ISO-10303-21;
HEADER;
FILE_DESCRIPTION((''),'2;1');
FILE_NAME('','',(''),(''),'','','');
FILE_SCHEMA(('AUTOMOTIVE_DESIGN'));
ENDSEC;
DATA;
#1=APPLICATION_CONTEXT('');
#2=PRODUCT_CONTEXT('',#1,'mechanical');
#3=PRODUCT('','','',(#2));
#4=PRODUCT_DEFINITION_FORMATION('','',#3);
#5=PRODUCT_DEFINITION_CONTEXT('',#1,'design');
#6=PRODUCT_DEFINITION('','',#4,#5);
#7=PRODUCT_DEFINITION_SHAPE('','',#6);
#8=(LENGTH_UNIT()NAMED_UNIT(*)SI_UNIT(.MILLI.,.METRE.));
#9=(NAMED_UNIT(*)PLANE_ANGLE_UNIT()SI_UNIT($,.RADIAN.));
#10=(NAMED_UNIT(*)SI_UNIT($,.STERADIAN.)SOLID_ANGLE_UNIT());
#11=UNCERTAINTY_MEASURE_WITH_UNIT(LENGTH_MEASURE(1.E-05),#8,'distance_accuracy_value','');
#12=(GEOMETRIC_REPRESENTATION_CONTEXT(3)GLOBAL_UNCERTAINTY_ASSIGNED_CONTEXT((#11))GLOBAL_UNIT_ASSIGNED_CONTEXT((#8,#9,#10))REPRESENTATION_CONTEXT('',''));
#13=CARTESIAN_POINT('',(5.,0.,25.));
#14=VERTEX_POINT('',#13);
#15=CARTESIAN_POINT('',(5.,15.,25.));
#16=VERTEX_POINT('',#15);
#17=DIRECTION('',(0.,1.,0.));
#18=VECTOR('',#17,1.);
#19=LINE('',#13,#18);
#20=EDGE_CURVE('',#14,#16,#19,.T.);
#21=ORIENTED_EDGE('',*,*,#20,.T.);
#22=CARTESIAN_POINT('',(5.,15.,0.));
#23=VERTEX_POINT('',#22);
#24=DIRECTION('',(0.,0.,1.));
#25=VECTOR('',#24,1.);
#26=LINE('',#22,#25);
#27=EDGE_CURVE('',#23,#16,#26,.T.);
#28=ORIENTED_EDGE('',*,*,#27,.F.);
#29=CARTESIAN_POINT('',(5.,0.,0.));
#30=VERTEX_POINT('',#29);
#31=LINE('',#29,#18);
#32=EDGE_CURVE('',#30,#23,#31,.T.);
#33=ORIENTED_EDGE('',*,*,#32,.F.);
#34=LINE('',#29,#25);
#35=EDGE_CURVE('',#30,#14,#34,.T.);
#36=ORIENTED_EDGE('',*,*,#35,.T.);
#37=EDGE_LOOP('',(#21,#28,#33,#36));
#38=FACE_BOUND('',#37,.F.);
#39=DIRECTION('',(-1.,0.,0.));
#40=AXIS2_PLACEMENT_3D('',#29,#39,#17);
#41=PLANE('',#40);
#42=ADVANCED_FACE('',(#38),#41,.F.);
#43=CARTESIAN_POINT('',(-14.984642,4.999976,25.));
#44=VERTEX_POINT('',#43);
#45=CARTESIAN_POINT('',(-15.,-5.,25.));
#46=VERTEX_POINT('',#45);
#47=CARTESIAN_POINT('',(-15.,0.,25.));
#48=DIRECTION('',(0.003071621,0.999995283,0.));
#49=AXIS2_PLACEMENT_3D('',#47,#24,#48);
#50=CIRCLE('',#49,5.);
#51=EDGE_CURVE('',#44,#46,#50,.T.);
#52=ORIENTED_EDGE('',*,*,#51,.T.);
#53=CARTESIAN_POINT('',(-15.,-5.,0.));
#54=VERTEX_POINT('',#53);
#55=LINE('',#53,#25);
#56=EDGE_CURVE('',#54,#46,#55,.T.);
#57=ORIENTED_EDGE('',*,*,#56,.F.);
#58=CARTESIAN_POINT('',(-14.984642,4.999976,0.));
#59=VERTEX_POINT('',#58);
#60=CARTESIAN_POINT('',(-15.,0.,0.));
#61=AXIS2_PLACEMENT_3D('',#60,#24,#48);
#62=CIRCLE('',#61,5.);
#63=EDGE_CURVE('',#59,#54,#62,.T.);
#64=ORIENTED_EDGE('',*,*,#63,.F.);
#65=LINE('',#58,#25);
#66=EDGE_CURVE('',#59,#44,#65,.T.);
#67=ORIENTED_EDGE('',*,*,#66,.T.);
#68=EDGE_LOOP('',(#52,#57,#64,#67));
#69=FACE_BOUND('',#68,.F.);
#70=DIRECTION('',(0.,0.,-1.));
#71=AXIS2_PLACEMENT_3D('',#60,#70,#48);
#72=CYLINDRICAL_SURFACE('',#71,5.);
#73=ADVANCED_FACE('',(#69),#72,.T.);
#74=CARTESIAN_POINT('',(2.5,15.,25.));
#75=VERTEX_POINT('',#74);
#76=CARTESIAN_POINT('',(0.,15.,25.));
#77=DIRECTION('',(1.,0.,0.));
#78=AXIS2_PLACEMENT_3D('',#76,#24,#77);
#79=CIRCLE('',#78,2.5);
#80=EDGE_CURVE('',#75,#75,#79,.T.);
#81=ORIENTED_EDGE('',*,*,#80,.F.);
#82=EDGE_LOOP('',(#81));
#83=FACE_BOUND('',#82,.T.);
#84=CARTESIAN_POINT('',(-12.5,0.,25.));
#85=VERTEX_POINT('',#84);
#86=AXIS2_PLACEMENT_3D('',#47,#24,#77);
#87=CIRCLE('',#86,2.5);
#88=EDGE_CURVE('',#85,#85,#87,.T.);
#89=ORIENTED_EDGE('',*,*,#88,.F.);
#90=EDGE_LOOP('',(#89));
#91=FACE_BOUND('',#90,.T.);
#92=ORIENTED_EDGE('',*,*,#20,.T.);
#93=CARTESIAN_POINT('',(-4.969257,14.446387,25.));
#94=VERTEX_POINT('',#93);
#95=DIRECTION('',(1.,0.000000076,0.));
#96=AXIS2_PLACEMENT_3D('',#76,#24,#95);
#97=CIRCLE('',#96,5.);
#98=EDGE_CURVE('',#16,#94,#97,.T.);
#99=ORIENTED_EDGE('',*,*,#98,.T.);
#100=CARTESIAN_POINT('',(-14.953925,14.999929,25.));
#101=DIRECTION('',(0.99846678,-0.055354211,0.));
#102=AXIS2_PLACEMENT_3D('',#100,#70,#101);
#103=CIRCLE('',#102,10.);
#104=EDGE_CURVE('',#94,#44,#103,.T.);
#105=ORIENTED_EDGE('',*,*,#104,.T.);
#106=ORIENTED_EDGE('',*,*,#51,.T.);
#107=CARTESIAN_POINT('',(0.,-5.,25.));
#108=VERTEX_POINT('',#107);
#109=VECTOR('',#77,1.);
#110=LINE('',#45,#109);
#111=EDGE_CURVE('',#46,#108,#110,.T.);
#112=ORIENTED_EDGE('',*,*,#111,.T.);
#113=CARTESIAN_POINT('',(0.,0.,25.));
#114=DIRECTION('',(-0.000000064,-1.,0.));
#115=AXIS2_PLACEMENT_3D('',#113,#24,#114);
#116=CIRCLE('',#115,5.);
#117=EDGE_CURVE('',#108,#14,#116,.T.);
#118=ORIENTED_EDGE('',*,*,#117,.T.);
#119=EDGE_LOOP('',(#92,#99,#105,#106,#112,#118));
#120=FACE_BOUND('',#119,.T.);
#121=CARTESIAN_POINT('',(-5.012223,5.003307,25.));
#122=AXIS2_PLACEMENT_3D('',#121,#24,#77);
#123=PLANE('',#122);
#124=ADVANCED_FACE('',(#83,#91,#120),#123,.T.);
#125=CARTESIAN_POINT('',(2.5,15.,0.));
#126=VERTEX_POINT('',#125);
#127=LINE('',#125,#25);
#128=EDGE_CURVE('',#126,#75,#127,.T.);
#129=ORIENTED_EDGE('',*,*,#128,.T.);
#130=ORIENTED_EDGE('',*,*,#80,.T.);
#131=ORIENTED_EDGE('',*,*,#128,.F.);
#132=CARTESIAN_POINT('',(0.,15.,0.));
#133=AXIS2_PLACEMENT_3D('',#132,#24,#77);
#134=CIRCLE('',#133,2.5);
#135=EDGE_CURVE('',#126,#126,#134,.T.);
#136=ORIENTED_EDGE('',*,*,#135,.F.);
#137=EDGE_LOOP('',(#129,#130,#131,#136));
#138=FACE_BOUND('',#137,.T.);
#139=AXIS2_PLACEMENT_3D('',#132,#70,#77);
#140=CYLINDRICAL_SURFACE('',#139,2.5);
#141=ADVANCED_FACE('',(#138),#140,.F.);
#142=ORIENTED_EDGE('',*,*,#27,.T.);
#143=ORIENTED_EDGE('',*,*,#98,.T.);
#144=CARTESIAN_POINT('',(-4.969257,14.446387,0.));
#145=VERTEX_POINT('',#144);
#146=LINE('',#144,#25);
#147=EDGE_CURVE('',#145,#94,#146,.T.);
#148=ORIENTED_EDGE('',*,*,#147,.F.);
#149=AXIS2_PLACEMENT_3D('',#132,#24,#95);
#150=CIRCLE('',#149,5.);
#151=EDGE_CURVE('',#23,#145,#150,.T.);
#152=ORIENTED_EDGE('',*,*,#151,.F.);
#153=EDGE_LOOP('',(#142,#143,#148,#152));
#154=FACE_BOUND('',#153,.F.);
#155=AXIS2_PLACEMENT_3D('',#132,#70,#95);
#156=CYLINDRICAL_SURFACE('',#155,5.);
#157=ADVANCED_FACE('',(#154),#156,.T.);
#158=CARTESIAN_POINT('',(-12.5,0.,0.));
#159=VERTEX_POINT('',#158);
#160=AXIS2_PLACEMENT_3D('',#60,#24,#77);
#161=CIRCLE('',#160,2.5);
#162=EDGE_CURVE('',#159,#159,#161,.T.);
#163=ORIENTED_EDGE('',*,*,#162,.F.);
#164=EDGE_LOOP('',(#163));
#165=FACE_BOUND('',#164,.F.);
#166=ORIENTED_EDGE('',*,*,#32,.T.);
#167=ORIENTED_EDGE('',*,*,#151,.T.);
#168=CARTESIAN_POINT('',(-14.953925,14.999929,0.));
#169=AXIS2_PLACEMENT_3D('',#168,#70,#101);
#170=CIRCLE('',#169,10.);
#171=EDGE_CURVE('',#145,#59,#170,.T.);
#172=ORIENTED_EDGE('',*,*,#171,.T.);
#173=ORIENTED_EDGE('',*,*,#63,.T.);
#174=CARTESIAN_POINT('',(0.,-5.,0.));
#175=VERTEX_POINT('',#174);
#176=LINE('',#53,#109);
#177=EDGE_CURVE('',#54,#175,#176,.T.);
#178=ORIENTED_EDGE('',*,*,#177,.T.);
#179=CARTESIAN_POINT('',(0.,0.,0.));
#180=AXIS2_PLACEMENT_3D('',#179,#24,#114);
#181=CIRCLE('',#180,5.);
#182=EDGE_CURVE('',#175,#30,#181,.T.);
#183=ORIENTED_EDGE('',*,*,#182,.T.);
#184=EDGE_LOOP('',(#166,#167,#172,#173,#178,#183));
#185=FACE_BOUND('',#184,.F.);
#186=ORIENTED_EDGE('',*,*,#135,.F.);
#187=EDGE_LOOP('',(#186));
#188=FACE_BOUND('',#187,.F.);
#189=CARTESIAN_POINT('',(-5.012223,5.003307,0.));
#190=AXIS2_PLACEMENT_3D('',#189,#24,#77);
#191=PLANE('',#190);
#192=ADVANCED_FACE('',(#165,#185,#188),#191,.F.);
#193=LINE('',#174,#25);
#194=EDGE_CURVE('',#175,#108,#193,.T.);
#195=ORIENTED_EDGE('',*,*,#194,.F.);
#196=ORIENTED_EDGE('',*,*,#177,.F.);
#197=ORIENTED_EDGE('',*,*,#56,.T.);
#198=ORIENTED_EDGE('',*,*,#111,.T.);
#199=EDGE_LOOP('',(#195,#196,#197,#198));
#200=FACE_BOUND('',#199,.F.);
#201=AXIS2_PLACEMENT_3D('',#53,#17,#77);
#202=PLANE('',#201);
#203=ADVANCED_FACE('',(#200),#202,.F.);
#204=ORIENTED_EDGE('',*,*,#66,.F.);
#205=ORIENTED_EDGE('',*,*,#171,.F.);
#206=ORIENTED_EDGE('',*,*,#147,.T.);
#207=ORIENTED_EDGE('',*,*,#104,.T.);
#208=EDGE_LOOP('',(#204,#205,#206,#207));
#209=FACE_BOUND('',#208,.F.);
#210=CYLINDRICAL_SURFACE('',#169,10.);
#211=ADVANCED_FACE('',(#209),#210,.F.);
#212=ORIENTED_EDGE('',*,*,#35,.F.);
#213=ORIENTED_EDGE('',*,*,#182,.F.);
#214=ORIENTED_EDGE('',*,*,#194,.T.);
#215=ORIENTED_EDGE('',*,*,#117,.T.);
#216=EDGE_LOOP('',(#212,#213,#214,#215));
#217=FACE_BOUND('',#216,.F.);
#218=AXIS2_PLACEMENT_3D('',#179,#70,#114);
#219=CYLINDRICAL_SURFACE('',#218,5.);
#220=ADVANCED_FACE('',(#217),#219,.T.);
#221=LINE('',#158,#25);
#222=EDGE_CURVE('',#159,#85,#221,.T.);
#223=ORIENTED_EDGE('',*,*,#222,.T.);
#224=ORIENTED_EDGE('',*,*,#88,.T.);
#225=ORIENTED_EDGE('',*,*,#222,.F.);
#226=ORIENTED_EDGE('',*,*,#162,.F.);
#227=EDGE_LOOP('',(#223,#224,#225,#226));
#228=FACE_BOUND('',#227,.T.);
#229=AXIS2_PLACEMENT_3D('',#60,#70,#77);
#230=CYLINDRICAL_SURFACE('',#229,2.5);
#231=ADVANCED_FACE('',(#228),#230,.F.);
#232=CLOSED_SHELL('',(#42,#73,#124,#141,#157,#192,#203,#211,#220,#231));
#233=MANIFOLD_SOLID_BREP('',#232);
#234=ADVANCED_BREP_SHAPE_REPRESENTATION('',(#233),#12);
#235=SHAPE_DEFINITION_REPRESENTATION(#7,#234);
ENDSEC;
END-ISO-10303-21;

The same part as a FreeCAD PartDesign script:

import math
import FreeCAD as App
import Part
import Sketcher
Q = App.Units.Quantity

doc = App.newDocument("Part")
params = doc.addObject("Spreadsheet::Sheet", "Params")
for row, (alias, value) in enumerate([
    ("sketch1_diameter", "5 mm"),
    ("sketch1_radius", "5 mm"),
    ("sketch1_radius2", "10 mm"),
    ("sketch1_width", "15 mm"),
    ("pad1_length", "25 mm"),
], start=1):
    params.set(f"A{row}", alias)
    params.set(f"B{row}", "=" + value)
    params.setAlias(f"B{row}", alias)

body = doc.addObject("PartDesign::Body", "Body")

# Sketch on XY plane
sketch1 = doc.addObject("Sketcher::SketchObject", "Sketch")
body.addObject(sketch1)
sketch1.AttachmentSupport = (doc.XY_Plane, [""])
sketch1.MapMode = "FlatFace"
sketch1.addGeometry([
    Part.LineSegment(App.Vector(5, 0, 0), App.Vector(5, 15, 0)),  # 0
    Part.ArcOfCircle(Part.Circle(App.Vector(0, 15, 0), App.Vector(0, 0, 1), 5), math.radians(0), math.radians(186)),  # 1
    Part.ArcOfCircle(Part.Circle(App.Vector(-15, 15, 0), App.Vector(0, 0, 1), 10), math.radians(-90), math.radians(-3)),  # 2
    Part.ArcOfCircle(Part.Circle(App.Vector(-15, 0, 0), App.Vector(0, 0, 1), 5), math.radians(90), math.radians(270)),  # 3
    Part.LineSegment(App.Vector(-15, -5, 0), App.Vector(0, -5, 0)),  # 4
    Part.ArcOfCircle(Part.Circle(App.Vector(0, 0, 0), App.Vector(0, 0, 1), 5), math.radians(-90), math.radians(0)),  # 5
    Part.Circle(App.Vector(-15, 0, 0), App.Vector(0, 0, 1), 2.5),  # 6
    Part.Circle(App.Vector(0, 15, 0), App.Vector(0, 0, 1), 2.5),  # 7
], False)
sketch1.addConstraint([
    Sketcher.Constraint("Tangent", 0, 2, 1, 1),
    Sketcher.Constraint("Coincident", 1, 2, 2, 2),
    Sketcher.Constraint("Tangent", 2, 1, 3, 1),
    Sketcher.Constraint("Tangent", 3, 2, 4, 1),
    Sketcher.Constraint("Tangent", 4, 2, 5, 1),
    Sketcher.Constraint("Tangent", 5, 2, 0, 1),
    Sketcher.Constraint("Vertical", 0),
    Sketcher.Constraint("Horizontal", 4),
    Sketcher.Constraint("Coincident", 5, 3, -1, 1),
    Sketcher.Constraint("Coincident", 6, 3, 3, 3),
    Sketcher.Constraint("Coincident", 7, 3, 1, 3),
    Sketcher.Constraint("Equal", 1, 3),
    Sketcher.Constraint("Equal", 3, 5),
    Sketcher.Constraint("Equal", 6, 7),
    Sketcher.Constraint("Equal", 4, 0),
    Sketcher.Constraint("Diameter", 6, Q("5 mm")),
    Sketcher.Constraint("Radius", 1, Q("5 mm")),
    Sketcher.Constraint("Radius", 2, Q("10 mm")),
    Sketcher.Constraint("DistanceX", 4, 1, 4, 2, Q("15 mm")),
    Sketcher.Constraint("DistanceX", 2, 3, 1, 2, Q("9.984668 mm")),
])
sketch1.setExpression("Constraints[15]", "Params.sketch1_diameter")
sketch1.setExpression("Constraints[16]", "Params.sketch1_radius")
sketch1.setExpression("Constraints[17]", "Params.sketch1_radius2")
sketch1.setExpression("Constraints[18]", "Params.sketch1_width")
pad1 = doc.addObject("PartDesign::Pad", "Pad")
body.addObject(pad1)
pad1.Profile = sketch1
pad1.setExpression("Length", "Params.pad1_length")

doc.recompute()
